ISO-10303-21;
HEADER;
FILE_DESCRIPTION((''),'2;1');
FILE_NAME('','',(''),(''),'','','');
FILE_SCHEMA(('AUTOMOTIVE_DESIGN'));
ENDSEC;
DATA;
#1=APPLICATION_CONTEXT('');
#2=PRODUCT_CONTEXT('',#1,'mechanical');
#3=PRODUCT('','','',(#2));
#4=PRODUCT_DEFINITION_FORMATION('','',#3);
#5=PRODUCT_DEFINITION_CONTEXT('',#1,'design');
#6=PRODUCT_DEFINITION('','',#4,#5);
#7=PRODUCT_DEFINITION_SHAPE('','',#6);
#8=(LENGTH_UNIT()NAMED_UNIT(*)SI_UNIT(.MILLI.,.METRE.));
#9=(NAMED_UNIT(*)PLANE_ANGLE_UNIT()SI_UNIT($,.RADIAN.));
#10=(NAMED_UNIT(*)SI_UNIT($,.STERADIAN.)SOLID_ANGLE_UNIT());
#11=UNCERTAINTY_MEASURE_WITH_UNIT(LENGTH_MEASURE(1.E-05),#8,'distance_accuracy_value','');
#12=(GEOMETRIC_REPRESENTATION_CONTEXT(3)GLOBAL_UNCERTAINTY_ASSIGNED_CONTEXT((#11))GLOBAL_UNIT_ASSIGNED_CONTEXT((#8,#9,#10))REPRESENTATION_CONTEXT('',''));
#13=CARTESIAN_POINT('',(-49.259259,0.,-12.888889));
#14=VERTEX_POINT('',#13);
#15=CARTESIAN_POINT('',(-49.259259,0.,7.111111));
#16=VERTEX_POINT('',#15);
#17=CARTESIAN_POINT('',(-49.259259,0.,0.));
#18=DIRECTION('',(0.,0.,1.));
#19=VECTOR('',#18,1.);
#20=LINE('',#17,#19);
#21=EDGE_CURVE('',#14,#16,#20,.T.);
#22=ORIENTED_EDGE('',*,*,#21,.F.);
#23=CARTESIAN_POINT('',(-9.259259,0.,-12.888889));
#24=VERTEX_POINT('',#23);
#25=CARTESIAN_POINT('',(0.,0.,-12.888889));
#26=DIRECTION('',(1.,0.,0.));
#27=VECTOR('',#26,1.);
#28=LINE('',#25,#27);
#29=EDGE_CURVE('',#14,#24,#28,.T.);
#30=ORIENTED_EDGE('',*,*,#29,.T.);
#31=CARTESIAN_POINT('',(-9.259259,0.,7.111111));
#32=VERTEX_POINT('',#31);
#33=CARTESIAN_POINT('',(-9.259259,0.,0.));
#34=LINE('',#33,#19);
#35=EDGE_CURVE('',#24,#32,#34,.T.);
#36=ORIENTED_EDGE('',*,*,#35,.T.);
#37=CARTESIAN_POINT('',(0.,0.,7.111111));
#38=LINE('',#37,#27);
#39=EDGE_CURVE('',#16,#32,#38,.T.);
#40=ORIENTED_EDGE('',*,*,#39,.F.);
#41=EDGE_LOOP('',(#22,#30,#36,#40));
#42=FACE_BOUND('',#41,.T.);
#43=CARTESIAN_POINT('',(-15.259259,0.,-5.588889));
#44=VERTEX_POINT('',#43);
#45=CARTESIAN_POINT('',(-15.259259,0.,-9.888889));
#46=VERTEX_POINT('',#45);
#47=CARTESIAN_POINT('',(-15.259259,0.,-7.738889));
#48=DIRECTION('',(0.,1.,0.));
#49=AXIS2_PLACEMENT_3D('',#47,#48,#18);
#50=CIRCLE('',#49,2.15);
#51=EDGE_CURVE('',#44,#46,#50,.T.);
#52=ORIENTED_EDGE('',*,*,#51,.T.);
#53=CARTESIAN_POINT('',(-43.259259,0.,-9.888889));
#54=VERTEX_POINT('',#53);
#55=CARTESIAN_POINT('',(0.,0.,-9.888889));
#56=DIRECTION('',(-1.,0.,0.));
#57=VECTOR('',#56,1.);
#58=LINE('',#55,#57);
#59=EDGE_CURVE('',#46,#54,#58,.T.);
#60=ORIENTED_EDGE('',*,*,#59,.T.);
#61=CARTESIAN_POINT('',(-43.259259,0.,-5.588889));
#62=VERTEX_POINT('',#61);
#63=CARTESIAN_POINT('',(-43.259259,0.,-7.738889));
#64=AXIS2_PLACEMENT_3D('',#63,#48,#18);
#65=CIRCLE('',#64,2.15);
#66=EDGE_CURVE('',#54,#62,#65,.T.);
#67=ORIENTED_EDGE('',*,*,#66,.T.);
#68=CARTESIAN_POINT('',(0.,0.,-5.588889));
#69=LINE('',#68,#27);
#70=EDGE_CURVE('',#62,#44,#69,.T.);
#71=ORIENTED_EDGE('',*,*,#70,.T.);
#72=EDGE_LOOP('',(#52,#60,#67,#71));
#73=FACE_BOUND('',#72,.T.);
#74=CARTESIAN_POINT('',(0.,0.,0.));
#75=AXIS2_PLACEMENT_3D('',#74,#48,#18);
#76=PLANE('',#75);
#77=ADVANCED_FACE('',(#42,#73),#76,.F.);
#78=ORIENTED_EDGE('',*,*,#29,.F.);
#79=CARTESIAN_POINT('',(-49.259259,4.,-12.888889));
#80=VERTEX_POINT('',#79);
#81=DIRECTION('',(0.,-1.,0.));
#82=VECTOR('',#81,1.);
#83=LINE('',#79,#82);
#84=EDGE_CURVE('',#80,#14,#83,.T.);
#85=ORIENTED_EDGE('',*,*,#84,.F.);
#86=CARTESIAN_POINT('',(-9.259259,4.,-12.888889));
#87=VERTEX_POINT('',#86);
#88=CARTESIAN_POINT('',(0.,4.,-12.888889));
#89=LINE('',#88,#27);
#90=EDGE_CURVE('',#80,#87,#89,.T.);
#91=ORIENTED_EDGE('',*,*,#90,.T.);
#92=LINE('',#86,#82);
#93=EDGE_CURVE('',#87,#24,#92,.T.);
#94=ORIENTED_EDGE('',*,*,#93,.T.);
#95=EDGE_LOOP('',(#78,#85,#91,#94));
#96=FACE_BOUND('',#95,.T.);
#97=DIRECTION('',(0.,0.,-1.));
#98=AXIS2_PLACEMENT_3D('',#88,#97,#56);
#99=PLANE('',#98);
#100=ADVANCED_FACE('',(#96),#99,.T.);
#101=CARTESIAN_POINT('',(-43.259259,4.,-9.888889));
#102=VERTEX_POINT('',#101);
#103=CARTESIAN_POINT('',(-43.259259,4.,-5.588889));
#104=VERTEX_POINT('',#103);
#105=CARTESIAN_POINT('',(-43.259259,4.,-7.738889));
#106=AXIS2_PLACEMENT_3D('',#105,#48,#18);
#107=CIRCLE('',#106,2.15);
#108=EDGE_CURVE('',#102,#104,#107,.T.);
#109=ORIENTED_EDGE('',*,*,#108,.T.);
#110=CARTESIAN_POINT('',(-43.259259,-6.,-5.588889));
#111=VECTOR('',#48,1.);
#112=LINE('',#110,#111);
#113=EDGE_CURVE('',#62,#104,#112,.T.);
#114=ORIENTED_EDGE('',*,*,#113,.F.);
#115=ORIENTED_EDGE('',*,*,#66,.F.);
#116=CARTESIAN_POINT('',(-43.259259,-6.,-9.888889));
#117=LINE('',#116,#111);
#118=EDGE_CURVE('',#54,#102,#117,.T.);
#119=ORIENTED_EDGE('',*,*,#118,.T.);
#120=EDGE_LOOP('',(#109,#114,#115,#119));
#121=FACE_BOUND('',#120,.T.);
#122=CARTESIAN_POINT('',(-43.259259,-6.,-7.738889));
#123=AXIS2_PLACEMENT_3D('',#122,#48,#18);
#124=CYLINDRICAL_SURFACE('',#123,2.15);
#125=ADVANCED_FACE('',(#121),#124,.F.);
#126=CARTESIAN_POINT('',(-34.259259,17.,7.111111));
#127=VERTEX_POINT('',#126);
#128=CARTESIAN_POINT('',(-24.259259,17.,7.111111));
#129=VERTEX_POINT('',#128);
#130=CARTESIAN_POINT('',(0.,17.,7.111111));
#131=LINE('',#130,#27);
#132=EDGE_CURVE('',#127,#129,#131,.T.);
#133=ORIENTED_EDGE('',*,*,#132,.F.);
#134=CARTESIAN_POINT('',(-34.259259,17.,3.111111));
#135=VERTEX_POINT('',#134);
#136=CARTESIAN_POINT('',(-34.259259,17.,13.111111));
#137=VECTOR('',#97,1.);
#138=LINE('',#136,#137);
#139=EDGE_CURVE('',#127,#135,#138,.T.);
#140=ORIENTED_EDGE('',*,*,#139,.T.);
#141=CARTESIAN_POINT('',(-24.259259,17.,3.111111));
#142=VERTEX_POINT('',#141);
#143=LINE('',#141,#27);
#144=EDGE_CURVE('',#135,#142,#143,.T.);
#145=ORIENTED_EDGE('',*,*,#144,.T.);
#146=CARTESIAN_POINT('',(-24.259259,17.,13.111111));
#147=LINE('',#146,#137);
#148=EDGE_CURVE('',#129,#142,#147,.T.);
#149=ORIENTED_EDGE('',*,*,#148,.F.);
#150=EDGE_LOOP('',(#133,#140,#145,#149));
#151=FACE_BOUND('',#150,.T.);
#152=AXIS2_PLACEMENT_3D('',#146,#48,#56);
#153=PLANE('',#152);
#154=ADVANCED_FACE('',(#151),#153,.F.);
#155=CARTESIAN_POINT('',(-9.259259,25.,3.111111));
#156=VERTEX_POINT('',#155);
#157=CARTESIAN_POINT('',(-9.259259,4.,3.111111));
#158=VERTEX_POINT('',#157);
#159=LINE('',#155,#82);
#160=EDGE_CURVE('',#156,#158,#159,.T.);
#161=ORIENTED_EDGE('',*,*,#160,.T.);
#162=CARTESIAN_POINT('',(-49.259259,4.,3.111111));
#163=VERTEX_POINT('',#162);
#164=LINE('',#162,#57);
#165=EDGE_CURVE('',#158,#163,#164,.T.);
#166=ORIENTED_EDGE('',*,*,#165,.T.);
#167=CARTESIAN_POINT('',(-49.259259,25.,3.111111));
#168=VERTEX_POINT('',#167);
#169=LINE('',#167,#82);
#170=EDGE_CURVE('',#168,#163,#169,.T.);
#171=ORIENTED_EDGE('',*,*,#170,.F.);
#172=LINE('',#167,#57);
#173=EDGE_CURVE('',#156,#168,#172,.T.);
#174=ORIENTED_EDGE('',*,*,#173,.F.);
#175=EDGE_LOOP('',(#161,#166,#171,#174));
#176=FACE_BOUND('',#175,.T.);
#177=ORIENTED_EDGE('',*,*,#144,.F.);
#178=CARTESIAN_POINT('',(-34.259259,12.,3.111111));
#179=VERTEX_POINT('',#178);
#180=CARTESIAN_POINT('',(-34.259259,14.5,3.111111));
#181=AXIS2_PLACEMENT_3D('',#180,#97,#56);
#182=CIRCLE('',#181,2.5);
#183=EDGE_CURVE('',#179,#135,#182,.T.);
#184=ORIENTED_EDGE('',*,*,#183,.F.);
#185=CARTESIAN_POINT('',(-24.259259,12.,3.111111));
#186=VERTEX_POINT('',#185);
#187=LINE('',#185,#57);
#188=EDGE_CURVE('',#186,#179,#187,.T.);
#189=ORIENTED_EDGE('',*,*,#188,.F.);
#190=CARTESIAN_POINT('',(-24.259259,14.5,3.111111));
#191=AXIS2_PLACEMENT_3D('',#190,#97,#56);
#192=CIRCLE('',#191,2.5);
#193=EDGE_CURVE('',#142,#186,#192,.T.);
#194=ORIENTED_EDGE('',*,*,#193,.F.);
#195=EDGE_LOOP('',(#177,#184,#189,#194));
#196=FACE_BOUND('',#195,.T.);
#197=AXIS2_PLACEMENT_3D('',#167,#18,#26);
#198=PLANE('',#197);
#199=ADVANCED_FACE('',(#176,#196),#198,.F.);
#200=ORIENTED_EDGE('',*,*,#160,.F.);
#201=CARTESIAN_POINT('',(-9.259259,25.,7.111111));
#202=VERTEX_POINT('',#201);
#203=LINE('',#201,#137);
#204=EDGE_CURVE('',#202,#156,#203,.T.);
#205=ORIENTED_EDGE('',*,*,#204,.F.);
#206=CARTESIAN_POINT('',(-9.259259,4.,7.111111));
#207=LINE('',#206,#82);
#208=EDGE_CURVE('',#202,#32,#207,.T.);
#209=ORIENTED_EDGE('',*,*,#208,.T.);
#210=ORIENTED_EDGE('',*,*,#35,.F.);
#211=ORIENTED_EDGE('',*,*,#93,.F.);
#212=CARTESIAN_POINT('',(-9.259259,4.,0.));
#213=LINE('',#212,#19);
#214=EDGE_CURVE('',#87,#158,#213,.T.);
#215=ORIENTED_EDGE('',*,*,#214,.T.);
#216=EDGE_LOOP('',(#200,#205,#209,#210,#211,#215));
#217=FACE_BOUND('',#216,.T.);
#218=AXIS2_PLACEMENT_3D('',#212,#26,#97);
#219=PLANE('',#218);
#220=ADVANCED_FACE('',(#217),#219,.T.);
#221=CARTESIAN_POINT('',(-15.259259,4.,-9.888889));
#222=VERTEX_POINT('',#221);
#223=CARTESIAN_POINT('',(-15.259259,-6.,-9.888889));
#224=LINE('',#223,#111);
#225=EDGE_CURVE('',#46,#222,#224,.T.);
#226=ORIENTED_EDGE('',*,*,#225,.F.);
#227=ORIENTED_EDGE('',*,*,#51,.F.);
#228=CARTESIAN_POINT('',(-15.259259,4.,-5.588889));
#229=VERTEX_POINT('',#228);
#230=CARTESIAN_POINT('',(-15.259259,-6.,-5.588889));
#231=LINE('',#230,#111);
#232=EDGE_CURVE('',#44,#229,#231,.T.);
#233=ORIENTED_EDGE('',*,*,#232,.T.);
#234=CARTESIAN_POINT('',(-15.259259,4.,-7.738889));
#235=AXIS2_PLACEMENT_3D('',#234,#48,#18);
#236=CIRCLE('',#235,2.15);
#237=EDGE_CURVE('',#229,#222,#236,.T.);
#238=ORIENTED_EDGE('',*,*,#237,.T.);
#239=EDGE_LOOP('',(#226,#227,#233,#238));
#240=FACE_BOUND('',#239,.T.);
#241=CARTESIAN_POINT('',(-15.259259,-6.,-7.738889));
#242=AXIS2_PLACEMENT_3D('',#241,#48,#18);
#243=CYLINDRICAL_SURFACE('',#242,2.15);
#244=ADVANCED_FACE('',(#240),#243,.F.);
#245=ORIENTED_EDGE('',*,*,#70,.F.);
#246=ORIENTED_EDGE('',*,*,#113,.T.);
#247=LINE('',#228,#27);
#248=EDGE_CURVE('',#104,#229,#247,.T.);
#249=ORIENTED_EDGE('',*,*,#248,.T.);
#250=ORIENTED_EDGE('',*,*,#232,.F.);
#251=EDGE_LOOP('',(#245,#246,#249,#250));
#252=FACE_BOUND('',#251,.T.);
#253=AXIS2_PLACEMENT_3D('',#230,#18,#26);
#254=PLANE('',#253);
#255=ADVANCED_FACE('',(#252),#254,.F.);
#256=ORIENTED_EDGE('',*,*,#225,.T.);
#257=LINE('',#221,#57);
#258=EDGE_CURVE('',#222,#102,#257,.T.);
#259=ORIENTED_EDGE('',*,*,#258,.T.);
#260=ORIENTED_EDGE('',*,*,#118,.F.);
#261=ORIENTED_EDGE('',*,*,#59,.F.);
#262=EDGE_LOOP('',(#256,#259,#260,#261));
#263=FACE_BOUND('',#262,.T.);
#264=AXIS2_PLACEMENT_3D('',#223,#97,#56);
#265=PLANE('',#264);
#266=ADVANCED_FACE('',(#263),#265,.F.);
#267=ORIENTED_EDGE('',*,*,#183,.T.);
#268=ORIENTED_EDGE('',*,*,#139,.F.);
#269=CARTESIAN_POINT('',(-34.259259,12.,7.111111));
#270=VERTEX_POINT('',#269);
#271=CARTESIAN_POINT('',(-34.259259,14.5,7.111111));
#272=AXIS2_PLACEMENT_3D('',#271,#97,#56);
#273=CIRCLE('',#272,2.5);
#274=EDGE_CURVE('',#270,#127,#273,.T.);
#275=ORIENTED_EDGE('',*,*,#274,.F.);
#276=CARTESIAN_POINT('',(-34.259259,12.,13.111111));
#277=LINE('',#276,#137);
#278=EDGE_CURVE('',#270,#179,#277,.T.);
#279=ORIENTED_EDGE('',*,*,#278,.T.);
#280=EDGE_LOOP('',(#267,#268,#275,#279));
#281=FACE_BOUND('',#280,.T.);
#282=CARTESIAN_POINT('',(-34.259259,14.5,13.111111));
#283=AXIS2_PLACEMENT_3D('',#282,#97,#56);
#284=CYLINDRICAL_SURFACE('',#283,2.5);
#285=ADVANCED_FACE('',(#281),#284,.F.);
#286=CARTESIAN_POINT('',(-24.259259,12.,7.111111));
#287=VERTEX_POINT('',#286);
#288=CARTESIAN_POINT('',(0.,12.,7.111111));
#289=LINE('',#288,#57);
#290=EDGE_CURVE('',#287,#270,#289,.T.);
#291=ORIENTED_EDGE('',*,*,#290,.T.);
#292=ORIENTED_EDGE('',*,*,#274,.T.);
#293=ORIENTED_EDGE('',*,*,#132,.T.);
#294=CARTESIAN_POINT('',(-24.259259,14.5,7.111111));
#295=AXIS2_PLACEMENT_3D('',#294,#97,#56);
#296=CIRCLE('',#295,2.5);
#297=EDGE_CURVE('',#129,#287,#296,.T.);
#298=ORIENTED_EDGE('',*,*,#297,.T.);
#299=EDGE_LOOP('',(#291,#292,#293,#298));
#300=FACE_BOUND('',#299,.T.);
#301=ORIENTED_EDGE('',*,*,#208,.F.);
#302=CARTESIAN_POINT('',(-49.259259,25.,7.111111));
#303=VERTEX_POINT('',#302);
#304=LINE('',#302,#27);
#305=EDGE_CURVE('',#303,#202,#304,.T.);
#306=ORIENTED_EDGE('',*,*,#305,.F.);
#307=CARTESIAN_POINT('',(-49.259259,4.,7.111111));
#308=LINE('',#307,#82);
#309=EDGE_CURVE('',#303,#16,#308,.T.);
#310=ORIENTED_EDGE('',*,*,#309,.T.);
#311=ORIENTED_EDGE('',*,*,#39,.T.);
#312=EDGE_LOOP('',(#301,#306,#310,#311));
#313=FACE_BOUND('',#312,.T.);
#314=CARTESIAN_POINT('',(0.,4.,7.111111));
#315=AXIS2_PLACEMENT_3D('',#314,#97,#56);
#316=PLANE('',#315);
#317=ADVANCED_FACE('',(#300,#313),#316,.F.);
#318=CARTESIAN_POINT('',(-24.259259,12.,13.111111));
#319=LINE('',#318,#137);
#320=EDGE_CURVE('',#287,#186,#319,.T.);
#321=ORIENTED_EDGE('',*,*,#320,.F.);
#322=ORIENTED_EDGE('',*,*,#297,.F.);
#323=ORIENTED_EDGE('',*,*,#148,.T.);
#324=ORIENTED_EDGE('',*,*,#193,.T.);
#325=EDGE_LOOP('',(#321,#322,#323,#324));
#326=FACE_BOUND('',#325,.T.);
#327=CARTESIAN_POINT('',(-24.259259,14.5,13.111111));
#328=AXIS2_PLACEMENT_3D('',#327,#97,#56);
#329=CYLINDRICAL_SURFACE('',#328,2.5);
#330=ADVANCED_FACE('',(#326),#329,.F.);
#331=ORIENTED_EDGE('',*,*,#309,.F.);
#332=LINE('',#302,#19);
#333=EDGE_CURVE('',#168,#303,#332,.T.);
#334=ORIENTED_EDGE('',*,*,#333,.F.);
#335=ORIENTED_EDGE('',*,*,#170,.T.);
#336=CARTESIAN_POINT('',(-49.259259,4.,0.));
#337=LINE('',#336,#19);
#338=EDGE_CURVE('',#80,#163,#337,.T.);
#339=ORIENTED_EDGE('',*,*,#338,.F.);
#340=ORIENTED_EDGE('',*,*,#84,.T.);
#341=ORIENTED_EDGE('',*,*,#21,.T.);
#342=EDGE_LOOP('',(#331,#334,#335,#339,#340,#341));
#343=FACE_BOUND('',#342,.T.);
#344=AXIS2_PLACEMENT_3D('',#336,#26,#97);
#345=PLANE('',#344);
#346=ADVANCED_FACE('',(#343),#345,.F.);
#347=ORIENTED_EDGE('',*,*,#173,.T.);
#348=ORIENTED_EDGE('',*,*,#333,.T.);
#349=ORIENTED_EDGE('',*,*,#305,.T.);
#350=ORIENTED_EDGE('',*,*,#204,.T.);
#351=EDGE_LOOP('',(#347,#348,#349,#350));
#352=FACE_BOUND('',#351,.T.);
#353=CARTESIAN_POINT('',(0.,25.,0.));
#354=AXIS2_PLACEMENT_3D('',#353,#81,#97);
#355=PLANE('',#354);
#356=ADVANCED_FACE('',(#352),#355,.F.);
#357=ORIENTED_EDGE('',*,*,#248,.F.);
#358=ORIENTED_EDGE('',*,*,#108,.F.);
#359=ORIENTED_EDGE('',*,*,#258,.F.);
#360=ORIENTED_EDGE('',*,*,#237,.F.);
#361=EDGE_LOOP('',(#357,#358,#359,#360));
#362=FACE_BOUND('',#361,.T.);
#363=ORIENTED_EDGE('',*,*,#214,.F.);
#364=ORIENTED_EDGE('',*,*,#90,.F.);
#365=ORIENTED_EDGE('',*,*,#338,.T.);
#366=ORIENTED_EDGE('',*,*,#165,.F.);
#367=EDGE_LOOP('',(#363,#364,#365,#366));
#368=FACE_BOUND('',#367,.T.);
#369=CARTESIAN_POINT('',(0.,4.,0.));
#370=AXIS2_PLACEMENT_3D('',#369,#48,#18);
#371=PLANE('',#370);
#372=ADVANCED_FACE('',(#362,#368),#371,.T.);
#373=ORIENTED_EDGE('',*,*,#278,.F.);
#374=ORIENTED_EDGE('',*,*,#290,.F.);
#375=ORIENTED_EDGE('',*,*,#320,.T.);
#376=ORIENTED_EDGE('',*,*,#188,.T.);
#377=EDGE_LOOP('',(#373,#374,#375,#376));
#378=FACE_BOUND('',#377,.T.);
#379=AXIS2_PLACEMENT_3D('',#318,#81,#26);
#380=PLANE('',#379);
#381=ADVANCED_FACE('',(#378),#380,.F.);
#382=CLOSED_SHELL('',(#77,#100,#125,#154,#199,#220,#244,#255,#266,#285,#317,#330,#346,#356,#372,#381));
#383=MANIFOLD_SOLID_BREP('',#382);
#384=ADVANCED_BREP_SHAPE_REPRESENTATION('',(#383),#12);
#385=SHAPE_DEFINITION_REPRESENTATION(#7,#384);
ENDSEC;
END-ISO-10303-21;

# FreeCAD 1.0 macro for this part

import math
import FreeCAD as App
import Part
import Sketcher
Q = App.Units.Quantity


def add_polygon(sketch, points):
    """Adds a closed chain of lines whose ends are joined by coincident constraints."""
    first, n = sketch.GeometryCount, len(points)
    for a, b in zip(points, points[1:] + points[:1]):
        sketch.addGeometry(Part.LineSegment(App.Vector(*a, 0), App.Vector(*b, 0)), False)
    for i in range(n):
        sketch.addConstraint(Sketcher.Constraint("Coincident", first + i, 2, first + (i + 1) % n, 1))

doc = App.newDocument("Part")
body = doc.addObject("PartDesign::Body", "Body")

# Sketch on XZ plane
sketch1 = body.newObject("Sketcher::SketchObject", "Sketch")
sketch1.AttachmentSupport = (doc.getObject("XZ_Plane"), [""])
sketch1.MapMode = "FlatFace"
add_polygon(sketch1, [(-49, -13), (-49, 7), (-9, 7), (-9, -13)])  # lines 0-3
sketch1.addConstraint([
    Sketcher.Constraint("Vertical", 0),
    Sketcher.Constraint("Horizontal", 1),
    Sketcher.Constraint("Vertical", 2),
    Sketcher.Constraint("Horizontal", 3),
    Sketcher.Constraint("DistanceX", 1, 1, 1, 2, Q("40 mm")),
    Sketcher.Constraint("DistanceY", 0, 1, 0, 2, Q("20 mm")),
    Sketcher.Constraint("DistanceX", 0, 2, -1, 1, Q("49.259259 mm")),
    Sketcher.Constraint("DistanceY", -1, 1, 0, 2, Q("7.111111 mm")),
])
pad1 = body.newObject("PartDesign::Pad", "Pad")
pad1.Profile = sketch1
pad1.Length = 4
pad1.Reversed = True

# Sketch on XZ plane
sketch2 = body.newObject("Sketcher::SketchObject", "Sketch001")
sketch2.AttachmentSupport = (doc.getObject("XZ_Plane"), [""])
sketch2.MapMode = "FlatFace"
sketch2.AttachmentOffset = App.Placement(App.Vector(0, 0, -4), App.Rotation())
add_polygon(sketch2, [(-49.3, 3.1), (-49.3, 7.1), (-9.3, 7.1), (-9.3, 3.1)])  # lines 0-3
sketch2.addConstraint([
    Sketcher.Constraint("Vertical", 0),
    Sketcher.Constraint("Horizontal", 1),
    Sketcher.Constraint("Vertical", 2),
    Sketcher.Constraint("Horizontal", 3),
    Sketcher.Constraint("DistanceX", 1, 1, 1, 2, Q("40 mm")),
    Sketcher.Constraint("DistanceY", 0, 1, 0, 2, Q("4 mm")),
    Sketcher.Constraint("DistanceX", 0, 2, -1, 1, Q("49.259259 mm")),
    Sketcher.Constraint("DistanceY", -1, 1, 0, 2, Q("7.111111 mm")),
])
pad2 = body.newObject("PartDesign::Pad", "Pad001")
pad2.Profile = sketch2
pad2.Length = 21
pad2.Reversed = True

# Sketch on XZ plane
sketch3 = body.newObject("Sketcher::SketchObject", "Sketch002")
sketch3.AttachmentSupport = (doc.getObject("XZ_Plane"), [""])
sketch3.MapMode = "FlatFace"
sketch3.AttachmentOffset = App.Placement(App.Vector(0, 0, -4), App.Rotation())
sketch3.addGeometry([
    Part.LineSegment(App.Vector(-43.3, -5.6, 0), App.Vector(-15.3, -5.6, 0)),
    Part.ArcOfCircle(Part.Circle(App.Vector(-15.3, -7.7, 0), App.Vector(0, 0, 1), 2.1), math.radians(-90), math.radians(90)),
    Part.LineSegment(App.Vector(-15.3, -9.9, 0), App.Vector(-43.3, -9.9, 0)),
    Part.ArcOfCircle(Part.Circle(App.Vector(-43.3, -7.7, 0), App.Vector(0, 0, 1), 2.1), math.radians(90), math.radians(270)),
], False)
sketch3.addConstraint([
    Sketcher.Constraint("Tangent", 0, 2, 1, 2),
    Sketcher.Constraint("Tangent", 1, 1, 2, 1),
    Sketcher.Constraint("Tangent", 2, 2, 3, 2),
    Sketcher.Constraint("Tangent", 3, 1, 0, 1),
    Sketcher.Constraint("Horizontal", 0),
    Sketcher.Constraint("Horizontal", 2),
    Sketcher.Constraint("DistanceX", 0, 1, 0, 2, Q("28 mm")),
    Sketcher.Constraint("Radius", 1, Q("2.15 mm")),
    Sketcher.Constraint("DistanceX", 1, 3, -1, 1, Q("15.259259 mm")),
    Sketcher.Constraint("DistanceY", 1, 3, -1, 1, Q("7.738889 mm")),
])
pocket1 = body.newObject("PartDesign::Pocket", "Pocket")
pocket1.Profile = sketch3
pocket1.Length = 10
pocket1.Reversed = True

# Sketch on XY plane
sketch4 = body.newObject("Sketcher::SketchObject", "Sketch003")
sketch4.AttachmentSupport = (doc.getObject("XY_Plane"), [""])
sketch4.MapMode = "FlatFace"
sketch4.AttachmentOffset = App.Placement(App.Vector(0, 0, 3.111111), App.Rotation())
sketch4.addGeometry([
    Part.LineSegment(App.Vector(-34.3, 17, 0), App.Vector(-24.3, 17, 0)),
    Part.ArcOfCircle(Part.Circle(App.Vector(-24.3, 14.5, 0), App.Vector(0, 0, 1), 2.5), math.radians(-90), math.radians(90)),
    Part.LineSegment(App.Vector(-24.3, 12, 0), App.Vector(-34.3, 12, 0)),
    Part.ArcOfCircle(Part.Circle(App.Vector(-34.3, 14.5, 0), App.Vector(0, 0, 1), 2.5), math.radians(90), math.radians(270)),
], False)
sketch4.addConstraint([
    Sketcher.Constraint("Tangent", 0, 2, 1, 2),
    Sketcher.Constraint("Tangent", 1, 1, 2, 1),
    Sketcher.Constraint("Tangent", 2, 2, 3, 2),
    Sketcher.Constraint("Tangent", 3, 1, 0, 1),
    Sketcher.Constraint("Horizontal", 0),
    Sketcher.Constraint("Horizontal", 2),
    Sketcher.Constraint("Radius", 1, Q("2.5 mm")),
    Sketcher.Constraint("DistanceX", 0, 1, 0, 2, Q("10 mm")),
    Sketcher.Constraint("DistanceY", -1, 1, 0, 2, Q("17 mm")),
    Sketcher.Constraint("DistanceX", 1, 3, -1, 1, Q("24.259259 mm")),
])
pocket2 = body.newObject("PartDesign::Pocket", "Pocket001")
pocket2.Profile = sketch4
pocket2.Length = 10
pocket2.Reversed = True

doc.recompute()
